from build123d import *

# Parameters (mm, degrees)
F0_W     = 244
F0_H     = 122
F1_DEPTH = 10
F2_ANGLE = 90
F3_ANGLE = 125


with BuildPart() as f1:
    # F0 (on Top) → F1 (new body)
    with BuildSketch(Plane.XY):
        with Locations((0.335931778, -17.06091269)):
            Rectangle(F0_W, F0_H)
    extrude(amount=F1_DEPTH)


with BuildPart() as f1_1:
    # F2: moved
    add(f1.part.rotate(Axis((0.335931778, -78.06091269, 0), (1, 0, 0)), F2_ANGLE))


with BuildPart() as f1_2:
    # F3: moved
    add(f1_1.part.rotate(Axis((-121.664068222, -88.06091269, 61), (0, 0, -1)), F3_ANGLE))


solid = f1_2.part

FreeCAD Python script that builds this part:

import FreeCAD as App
import Part
import Sketcher
Q = App.Units.Quantity

doc = App.newDocument("Part")
params = doc.addObject("Spreadsheet::Sheet", "Params")
for row, (alias, value) in enumerate([
    ("sketch1_width", "244 mm"),
    ("sketch1_height", "122 mm"),
    ("pad1_length", "10 mm"),
], start=1):
    params.set(f"A{row}", alias)
    params.set(f"B{row}", "=" + value)
    params.setAlias(f"B{row}", alias)

body = doc.addObject("PartDesign::Body", "Body")

# Sketch on XY plane
sketch1 = body.newObject("Sketcher::SketchObject", "Sketch")
sketch1.AttachmentSupport = (doc.getObject("XY_Plane"), [""])
sketch1.MapMode = "FlatFace"
sketch1.addGeometry(Part.LineSegment(App.Vector(-122, 44, 0), App.Vector(-122, -78, 0)), False)
sketch1.addGeometry(Part.LineSegment(App.Vector(-122, -78, 0), App.Vector(122, -78, 0)), False)
sketch1.addGeometry(Part.LineSegment(App.Vector(122, -78, 0), App.Vector(122, 44, 0)), False)
sketch1.addGeometry(Part.LineSegment(App.Vector(122, 44, 0), App.Vector(-122, 44, 0)), False)
sketch1.addConstraint(Sketcher.Constraint("Coincident", 0, 2, 1, 1))
sketch1.addConstraint(Sketcher.Constraint("Coincident", 1, 2, 2, 1))
sketch1.addConstraint(Sketcher.Constraint("Coincident", 2, 2, 3, 1))
sketch1.addConstraint(Sketcher.Constraint("Coincident", 3, 2, 0, 1))
sketch1.addConstraint(Sketcher.Constraint("Vertical", 0))
sketch1.addConstraint(Sketcher.Constraint("Horizontal", 1))
sketch1.addConstraint(Sketcher.Constraint("Vertical", 2))
sketch1.addConstraint(Sketcher.Constraint("Horizontal", 3))
sketch1.addConstraint(Sketcher.Constraint("DistanceX", 1, 1, 1, 2, Q("244 mm")))
sketch1.addConstraint(Sketcher.Constraint("DistanceY", 0, 2, 0, 1, Q("122 mm")))
sketch1.addConstraint(Sketcher.Constraint("DistanceX", 0, 2, -1, 1, Q("121.664068 mm")))
sketch1.addConstraint(Sketcher.Constraint("DistanceY", 0, 2, -1, 1, Q("78.060913 mm")))
sketch1.setExpression("Constraints[8]", "Params.sketch1_width")
sketch1.setExpression("Constraints[9]", "Params.sketch1_height")
pad1 = body.newObject("PartDesign::Pad", "Pad")
pad1.Profile = sketch1
pad1.setExpression("Length", "Params.pad1_length")
body2 = doc.addObject("PartDesign::Body", "Body001")
doc.recompute()

body.Placement = App.Placement(App.Vector(0, -78.060913, 78.060913), App.Rotation(App.Vector(1, 0, 0), 90))
boolean = body2.newObject("PartDesign::Boolean", "Boolean")
boolean.Type = "Fuse"
boolean.addObjects([body])
body3 = doc.addObject("PartDesign::Body", "Body002")
doc.recompute()

body2.Placement = App.Placement(App.Vector(-119.312434, -238.231947, 0), App.Rotation(App.Vector(0, 0, -1), 125))
boolean2 = body3.newObject("PartDesign::Boolean", "Boolean001")
boolean2.Type = "Fuse"
boolean2.addObjects([body2])

doc.recompute()
